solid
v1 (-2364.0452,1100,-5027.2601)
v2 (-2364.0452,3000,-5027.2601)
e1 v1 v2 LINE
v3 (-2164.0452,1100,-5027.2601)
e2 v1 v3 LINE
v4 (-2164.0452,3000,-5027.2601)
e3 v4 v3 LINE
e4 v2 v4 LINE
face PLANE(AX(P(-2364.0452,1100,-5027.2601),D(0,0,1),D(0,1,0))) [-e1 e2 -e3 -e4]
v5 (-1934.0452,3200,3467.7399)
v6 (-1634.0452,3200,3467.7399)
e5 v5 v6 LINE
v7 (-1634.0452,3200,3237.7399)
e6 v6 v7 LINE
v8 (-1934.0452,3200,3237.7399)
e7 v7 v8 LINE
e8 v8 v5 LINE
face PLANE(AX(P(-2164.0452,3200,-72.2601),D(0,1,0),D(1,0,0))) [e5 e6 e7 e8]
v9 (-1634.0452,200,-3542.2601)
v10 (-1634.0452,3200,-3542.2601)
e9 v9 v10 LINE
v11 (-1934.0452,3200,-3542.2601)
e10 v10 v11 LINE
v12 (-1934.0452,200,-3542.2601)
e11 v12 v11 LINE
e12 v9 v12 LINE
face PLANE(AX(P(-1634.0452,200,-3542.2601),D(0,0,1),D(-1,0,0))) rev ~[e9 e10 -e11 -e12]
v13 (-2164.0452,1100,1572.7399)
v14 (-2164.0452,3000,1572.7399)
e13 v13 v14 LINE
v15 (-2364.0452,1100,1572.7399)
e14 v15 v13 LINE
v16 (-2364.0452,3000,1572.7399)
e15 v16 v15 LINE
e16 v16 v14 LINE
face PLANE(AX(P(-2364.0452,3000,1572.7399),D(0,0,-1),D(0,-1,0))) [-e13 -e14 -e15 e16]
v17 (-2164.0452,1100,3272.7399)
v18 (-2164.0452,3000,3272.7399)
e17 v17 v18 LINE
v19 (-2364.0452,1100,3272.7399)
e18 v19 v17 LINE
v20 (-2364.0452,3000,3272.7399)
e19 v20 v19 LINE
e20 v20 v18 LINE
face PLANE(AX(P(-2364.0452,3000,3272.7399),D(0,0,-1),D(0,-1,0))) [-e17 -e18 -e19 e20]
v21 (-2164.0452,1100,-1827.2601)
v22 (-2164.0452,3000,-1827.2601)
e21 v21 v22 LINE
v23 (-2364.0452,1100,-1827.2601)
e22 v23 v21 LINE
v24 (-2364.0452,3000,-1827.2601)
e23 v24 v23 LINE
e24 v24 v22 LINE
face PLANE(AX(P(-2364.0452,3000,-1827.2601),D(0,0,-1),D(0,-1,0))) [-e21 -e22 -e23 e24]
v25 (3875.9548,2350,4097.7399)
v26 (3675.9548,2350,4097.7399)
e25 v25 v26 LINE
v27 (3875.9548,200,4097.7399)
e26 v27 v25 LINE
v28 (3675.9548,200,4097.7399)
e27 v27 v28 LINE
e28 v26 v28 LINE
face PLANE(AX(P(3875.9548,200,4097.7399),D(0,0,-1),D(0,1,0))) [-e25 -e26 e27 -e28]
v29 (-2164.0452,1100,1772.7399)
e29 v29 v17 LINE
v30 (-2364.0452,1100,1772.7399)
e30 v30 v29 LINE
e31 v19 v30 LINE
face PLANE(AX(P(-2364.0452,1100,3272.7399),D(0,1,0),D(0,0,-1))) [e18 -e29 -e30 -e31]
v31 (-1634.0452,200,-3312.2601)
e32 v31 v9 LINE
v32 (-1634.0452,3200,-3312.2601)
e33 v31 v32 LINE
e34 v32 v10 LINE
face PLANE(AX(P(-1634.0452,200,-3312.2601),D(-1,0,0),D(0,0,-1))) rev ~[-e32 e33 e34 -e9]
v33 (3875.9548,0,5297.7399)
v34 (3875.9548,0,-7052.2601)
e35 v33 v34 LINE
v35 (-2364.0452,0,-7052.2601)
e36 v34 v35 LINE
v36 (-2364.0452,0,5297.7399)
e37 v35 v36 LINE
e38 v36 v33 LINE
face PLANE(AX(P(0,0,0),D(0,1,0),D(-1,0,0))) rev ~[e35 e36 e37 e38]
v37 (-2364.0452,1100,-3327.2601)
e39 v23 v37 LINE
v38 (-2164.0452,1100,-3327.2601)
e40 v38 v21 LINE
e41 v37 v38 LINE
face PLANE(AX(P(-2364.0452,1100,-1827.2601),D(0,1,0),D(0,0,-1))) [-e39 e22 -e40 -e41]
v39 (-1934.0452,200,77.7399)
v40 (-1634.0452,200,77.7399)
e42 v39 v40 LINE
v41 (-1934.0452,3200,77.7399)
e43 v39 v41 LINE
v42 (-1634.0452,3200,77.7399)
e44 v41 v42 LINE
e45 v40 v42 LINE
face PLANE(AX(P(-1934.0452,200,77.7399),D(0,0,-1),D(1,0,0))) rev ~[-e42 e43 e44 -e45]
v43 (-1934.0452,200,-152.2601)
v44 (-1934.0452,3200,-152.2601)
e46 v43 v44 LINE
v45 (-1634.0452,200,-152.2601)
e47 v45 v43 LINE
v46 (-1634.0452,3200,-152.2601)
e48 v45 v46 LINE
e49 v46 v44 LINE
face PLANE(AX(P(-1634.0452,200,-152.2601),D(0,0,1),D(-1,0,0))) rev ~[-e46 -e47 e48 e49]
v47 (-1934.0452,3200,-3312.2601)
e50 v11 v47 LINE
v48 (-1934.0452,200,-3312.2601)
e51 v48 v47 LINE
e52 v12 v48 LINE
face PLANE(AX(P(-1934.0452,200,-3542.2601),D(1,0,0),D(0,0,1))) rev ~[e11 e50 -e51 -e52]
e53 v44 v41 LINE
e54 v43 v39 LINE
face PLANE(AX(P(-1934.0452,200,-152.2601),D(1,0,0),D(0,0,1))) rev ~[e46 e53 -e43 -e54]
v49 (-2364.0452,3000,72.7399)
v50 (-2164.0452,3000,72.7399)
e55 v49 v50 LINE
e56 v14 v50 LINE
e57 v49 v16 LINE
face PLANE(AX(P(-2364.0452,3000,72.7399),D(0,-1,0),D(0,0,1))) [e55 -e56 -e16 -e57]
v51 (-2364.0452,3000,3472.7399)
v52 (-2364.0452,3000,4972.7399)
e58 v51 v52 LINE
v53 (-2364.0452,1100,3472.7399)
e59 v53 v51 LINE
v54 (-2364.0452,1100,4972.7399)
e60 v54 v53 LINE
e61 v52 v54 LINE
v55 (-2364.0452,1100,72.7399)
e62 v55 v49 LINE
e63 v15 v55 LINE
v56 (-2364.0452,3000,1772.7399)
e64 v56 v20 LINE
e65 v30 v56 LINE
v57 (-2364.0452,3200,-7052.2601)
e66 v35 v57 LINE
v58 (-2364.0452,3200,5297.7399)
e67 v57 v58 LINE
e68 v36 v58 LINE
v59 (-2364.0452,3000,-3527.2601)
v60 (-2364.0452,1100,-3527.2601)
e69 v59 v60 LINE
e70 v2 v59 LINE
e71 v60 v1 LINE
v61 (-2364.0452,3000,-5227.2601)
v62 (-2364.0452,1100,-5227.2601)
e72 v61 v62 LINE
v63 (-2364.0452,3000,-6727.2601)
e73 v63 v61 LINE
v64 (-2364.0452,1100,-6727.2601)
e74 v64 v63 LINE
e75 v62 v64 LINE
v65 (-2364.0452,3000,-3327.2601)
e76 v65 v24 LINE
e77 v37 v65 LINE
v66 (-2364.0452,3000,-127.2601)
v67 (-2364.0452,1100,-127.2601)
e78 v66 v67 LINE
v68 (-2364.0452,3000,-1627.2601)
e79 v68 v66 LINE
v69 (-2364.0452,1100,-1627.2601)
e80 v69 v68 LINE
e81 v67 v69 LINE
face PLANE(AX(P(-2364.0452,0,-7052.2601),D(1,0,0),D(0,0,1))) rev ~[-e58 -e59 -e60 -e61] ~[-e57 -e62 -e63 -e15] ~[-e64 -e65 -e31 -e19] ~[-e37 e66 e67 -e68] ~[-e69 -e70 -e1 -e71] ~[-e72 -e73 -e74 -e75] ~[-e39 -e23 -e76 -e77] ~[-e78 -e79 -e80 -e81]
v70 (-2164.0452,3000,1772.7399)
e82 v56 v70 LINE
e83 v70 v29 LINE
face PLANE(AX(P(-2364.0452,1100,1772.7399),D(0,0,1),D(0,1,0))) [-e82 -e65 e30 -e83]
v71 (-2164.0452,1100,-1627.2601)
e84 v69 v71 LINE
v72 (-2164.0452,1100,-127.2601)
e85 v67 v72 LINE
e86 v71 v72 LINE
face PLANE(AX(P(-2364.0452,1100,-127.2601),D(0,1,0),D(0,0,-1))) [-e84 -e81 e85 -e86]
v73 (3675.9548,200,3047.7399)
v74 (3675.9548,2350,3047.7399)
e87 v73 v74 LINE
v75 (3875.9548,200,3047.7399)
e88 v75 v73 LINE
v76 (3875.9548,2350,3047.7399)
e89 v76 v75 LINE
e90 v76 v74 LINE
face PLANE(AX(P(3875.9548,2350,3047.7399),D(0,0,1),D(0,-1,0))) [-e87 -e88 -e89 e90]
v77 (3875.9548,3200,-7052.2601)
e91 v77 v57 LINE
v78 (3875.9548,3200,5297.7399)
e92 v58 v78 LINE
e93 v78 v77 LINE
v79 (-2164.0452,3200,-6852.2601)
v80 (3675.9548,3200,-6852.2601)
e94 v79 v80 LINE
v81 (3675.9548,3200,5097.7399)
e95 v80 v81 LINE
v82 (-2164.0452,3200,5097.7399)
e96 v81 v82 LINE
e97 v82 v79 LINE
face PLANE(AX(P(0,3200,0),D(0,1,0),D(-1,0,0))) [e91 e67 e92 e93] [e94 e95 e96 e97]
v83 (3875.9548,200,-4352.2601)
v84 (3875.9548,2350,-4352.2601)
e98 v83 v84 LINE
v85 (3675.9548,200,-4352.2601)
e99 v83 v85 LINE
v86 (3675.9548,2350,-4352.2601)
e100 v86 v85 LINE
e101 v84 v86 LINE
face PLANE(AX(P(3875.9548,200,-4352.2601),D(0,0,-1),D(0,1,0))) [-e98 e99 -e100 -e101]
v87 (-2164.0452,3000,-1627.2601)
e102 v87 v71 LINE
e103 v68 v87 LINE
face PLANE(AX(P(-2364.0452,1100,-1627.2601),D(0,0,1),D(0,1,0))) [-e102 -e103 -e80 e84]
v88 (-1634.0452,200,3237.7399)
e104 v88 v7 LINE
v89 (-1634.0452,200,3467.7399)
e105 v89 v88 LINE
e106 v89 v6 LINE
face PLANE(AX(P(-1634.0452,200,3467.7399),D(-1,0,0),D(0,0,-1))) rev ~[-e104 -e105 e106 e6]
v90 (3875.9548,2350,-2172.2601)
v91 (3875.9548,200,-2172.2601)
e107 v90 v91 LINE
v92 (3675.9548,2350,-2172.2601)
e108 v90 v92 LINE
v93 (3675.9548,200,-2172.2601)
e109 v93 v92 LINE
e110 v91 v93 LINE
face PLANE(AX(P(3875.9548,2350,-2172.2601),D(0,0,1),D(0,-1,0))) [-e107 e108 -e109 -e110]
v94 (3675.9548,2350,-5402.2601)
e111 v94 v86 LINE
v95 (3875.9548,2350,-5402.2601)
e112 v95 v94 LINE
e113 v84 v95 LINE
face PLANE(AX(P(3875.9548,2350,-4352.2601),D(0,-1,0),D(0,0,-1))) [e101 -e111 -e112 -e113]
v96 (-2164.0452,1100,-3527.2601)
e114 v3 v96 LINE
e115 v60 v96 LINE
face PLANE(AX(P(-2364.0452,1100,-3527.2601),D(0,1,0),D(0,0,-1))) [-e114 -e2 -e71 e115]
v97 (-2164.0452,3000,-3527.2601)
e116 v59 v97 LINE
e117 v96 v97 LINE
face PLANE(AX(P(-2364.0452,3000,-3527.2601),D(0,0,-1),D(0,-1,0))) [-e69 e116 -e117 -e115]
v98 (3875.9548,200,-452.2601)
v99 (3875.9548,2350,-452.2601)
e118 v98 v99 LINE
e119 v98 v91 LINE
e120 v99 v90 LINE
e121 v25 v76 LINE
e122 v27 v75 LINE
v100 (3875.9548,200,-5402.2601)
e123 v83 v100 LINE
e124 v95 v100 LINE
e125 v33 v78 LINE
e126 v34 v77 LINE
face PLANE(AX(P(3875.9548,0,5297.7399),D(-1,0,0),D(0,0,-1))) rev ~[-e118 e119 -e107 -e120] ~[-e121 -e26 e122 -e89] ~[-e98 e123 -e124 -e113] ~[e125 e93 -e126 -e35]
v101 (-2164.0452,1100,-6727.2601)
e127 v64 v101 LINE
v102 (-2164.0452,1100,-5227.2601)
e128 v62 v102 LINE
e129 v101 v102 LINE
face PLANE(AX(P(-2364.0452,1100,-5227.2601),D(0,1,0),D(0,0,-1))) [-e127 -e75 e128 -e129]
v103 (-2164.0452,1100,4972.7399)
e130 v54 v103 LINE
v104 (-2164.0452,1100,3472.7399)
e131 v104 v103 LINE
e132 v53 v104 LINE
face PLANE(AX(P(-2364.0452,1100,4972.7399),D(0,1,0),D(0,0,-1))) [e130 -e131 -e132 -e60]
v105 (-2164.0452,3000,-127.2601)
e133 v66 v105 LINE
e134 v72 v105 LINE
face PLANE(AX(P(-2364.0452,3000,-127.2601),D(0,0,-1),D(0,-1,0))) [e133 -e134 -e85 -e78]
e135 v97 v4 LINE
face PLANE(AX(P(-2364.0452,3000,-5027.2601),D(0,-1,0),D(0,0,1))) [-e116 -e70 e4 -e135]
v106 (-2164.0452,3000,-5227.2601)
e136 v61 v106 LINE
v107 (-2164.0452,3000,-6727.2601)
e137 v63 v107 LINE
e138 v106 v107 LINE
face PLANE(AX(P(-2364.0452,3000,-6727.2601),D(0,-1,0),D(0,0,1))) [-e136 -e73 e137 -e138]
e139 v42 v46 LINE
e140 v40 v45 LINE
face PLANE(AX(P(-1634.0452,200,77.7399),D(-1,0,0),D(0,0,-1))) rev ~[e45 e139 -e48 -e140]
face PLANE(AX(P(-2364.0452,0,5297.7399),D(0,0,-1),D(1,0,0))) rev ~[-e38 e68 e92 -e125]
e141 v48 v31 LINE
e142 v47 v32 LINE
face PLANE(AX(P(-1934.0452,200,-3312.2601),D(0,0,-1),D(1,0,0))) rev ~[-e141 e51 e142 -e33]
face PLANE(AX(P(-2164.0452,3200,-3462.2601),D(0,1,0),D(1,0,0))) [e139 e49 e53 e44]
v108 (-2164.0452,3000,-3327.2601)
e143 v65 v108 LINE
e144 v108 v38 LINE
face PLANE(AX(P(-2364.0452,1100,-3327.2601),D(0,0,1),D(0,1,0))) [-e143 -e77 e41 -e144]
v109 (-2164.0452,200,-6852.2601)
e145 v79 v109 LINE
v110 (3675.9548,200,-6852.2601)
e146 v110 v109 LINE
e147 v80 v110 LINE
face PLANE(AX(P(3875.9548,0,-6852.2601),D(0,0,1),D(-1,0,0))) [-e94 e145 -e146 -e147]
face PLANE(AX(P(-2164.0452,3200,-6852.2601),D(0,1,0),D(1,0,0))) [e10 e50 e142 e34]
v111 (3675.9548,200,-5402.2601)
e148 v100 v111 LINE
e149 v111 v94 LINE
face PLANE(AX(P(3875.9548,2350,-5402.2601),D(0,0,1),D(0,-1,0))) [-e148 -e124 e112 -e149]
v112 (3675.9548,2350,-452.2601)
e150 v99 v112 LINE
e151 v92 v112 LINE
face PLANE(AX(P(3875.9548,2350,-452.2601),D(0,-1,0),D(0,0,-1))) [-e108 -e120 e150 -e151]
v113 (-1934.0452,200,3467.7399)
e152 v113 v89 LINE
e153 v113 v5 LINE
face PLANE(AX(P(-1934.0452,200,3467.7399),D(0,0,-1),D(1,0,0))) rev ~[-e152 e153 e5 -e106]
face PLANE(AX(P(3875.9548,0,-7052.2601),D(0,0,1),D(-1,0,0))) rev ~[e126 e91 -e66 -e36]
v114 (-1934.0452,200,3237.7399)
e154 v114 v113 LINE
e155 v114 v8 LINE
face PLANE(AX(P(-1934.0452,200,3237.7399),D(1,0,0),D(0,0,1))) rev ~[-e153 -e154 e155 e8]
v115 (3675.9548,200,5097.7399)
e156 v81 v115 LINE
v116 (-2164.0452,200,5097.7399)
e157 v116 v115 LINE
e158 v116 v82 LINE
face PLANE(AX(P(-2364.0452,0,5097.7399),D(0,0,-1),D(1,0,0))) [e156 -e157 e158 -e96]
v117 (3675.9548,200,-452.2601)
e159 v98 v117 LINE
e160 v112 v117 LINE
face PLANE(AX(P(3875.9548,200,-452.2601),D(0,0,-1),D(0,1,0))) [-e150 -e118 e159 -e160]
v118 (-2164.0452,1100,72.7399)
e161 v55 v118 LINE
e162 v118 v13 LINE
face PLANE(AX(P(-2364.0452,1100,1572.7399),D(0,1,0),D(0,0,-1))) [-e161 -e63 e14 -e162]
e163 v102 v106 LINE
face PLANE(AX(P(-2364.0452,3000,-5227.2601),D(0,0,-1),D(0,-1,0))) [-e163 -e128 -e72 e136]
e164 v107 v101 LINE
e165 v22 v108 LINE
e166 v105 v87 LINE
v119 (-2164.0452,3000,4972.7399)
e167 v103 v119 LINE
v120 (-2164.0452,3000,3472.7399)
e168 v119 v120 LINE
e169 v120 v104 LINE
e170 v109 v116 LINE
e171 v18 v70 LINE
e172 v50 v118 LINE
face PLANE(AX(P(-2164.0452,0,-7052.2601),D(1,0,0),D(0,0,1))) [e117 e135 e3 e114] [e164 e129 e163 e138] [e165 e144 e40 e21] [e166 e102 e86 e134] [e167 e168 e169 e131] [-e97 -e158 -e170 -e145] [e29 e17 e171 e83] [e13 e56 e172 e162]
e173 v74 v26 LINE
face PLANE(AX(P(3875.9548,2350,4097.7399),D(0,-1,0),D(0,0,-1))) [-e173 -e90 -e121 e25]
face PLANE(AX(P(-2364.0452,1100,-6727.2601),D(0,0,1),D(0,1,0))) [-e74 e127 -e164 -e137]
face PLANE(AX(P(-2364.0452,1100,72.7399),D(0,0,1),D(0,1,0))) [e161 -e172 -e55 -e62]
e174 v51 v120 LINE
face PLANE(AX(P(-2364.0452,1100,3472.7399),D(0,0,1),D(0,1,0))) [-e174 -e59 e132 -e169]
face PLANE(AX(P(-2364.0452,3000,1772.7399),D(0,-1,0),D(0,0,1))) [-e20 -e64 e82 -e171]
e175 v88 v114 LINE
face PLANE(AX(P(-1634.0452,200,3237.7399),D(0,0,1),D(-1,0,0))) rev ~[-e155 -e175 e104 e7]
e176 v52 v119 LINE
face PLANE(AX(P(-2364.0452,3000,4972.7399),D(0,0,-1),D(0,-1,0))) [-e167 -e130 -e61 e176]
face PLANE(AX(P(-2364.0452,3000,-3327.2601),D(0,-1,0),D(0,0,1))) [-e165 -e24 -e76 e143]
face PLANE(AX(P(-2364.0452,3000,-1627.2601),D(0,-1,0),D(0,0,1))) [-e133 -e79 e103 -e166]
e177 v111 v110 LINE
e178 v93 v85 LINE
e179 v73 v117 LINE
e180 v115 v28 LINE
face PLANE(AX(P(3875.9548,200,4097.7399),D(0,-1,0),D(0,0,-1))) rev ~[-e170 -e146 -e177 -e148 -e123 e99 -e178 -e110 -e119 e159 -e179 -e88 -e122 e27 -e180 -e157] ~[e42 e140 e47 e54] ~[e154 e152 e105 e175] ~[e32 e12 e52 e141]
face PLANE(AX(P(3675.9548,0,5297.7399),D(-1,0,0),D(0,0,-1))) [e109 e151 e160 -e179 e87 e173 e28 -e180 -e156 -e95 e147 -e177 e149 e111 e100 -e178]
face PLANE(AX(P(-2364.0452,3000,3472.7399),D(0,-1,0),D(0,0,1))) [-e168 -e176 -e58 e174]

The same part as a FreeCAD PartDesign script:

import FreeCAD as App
import Part
import Sketcher
from FreeCAD import Vector


def faces_at(feature, points):
    """Names of the faces that lie closest to the given points."""
    faces = feature.Shape.Faces
    near = lambda p: min(range(len(faces)), key=lambda i: faces[i].distToShape(Part.Vertex(*p))[0])
    return sorted({f"Face{near(p) + 1}" for p in points})


def add_polygon(sketch, points):
    """Adds a closed chain of lines whose ends are joined by coincident constraints."""
    first, n = sketch.GeometryCount, len(points)
    for a, b in zip(points, points[1:] + points[:1]):
        sketch.addGeometry(Part.LineSegment(App.Vector(*a, 0), App.Vector(*b, 0)), False)
    for i in range(n):
        sketch.addConstraint(Sketcher.Constraint("Coincident", first + i, 2, first + (i + 1) % n, 1))

doc = App.newDocument("Part")
body = doc.addObject("PartDesign::Body", "Body")

sketch1 = body.newObject("Sketcher::SketchObject", "Sketch")
sketch1.AttachmentSupport = (doc.getObject("XZ_Plane"), [""])
sketch1.MapMode = "FlatFace"
add_polygon(sketch1, [(-2364, -7052), (-2364, 5298), (3876, 5298), (3876, -7052)])
sketch1.addConstraint(Sketcher.Constraint("Vertical", 0))
sketch1.addConstraint(Sketcher.Constraint("Horizontal", 1))
sketch1.addConstraint(Sketcher.Constraint("Vertical", 2))
sketch1.addConstraint(Sketcher.Constraint("Horizontal", 3))
sketch1.addConstraint(Sketcher.Constraint("DistanceX", 1, 1, 1, 2, 6240.0))
sketch1.addConstraint(Sketcher.Constraint("DistanceY", 0, 1, 0, 2, 12350.0))
sketch1.addConstraint(Sketcher.Constraint("DistanceY", -1, 1, 0, 2, 5297.74))
sketch1.addConstraint(Sketcher.Constraint("DistanceX", 0, 2, -1, 1, 2364.0452))
pad1 = body.newObject("PartDesign::Pad", "Pad")
pad1.Profile = sketch1
pad1.Length = 3200
pad1.Reversed = True
doc.recompute()

thickness = body.newObject("PartDesign::Thickness", "Thickness")
thickness.Base = (pad1, faces_at(pad1, [(-284.045, 3200, 1181.073)]))
thickness.Value = 200
thickness.Reversed = True
thickness.Join = "Intersection"

sketch2 = body.newObject("Sketcher::SketchObject", "Sketch001")
sketch2.AttachmentSupport = (doc.getObject("YZ_Plane"), [""])
sketch2.MapMode = "FlatFace"
sketch2.AttachmentOffset = App.Placement(Vector(0, 0, 3875.9548), App.Rotation())
add_polygon(sketch2, [(2350, 4098), (200, 4098), (200, 3048), (2350, 3048)])
add_polygon(sketch2, [(2350, -4352), (200, -4352), (200, -5402), (2350, -5402)])
add_polygon(sketch2, [(2350, -452), (200, -452), (200, -2172), (2350, -2172)])
sketch2.addConstraint(Sketcher.Constraint("Horizontal", 0))
sketch2.addConstraint(Sketcher.Constraint("Vertical", 1))
sketch2.addConstraint(Sketcher.Constraint("Horizontal", 2))
sketch2.addConstraint(Sketcher.Constraint("Vertical", 3))
sketch2.addConstraint(Sketcher.Constraint("Horizontal", 4))
sketch2.addConstraint(Sketcher.Constraint("Vertical", 5))
sketch2.addConstraint(Sketcher.Constraint("Horizontal", 6))
sketch2.addConstraint(Sketcher.Constraint("Vertical", 7))
sketch2.addConstraint(Sketcher.Constraint("Horizontal", 8))
sketch2.addConstraint(Sketcher.Constraint("Vertical", 9))
sketch2.addConstraint(Sketcher.Constraint("Horizontal", 10))
sketch2.addConstraint(Sketcher.Constraint("Vertical", 11))
sketch2.addConstraint(Sketcher.Constraint("Vertical", 1, 2, 4, 2))
sketch2.addConstraint(Sketcher.Constraint("Vertical", 3, 2, 6, 2))
sketch2.addConstraint(Sketcher.Constraint("Vertical", 5, 2, 8, 2))
sketch2.addConstraint(Sketcher.Constraint("Vertical", 7, 2, 10, 2))
sketch2.addConstraint(Sketcher.Constraint("Equal", 3, 5))
sketch2.addConstraint(Sketcher.Constraint("DistanceX", 0, 2, 0, 1, 2150.0))
sketch2.addConstraint(Sketcher.Constraint("DistanceY", 1, 2, 1, 1, 1050.0))
sketch2.addConstraint(Sketcher.Constraint("DistanceY", 9, 2, 9, 1, 1720.0))
sketch2.addConstraint(Sketcher.Constraint("DistanceX", -1, 1, 0, 2, 200.0))
sketch2.addConstraint(Sketcher.Constraint("DistanceY", 4, 2, 1, 2, 7400.0))
sketch2.addConstraint(Sketcher.Constraint("DistanceY", 8, 2, 1, 2, 3500.0))
sketch2.addConstraint(Sketcher.Constraint("DistanceY", -1, 1, 0, 2, 4097.74))
pocket1 = body.newObject("PartDesign::Pocket", "Pocket")
pocket1.Profile = sketch2
pocket1.Length = 3000

sketch3 = body.newObject("Sketcher::SketchObject", "Sketch002")
sketch3.AttachmentSupport = (doc.getObject("YZ_Plane"), [""])
sketch3.MapMode = "FlatFace"
sketch3.AttachmentOffset = App.Placement(Vector(0, 0, -2364.0452), App.Rotation())
add_polygon(sketch3, [(3000, -5227), (3000, -6727), (1100, -6727), (1100, -5227)])
sketch3.addConstraint(Sketcher.Constraint("Vertical", 0))
sketch3.addConstraint(Sketcher.Constraint("Horizontal", 1))
sketch3.addConstraint(Sketcher.Constraint("Vertical", 2))
sketch3.addConstraint(Sketcher.Constraint("Horizontal", 3))
sketch3.addConstraint(Sketcher.Constraint("DistanceX", 1, 2, 1, 1, 1900.0))
sketch3.addConstraint(Sketcher.Constraint("DistanceY", 0, 2, 0, 1, 1500.0))
sketch3.addConstraint(Sketcher.Constraint("DistanceX", -1, 1, 0, 2, 3000.0))
sketch3.addConstraint(Sketcher.Constraint("DistanceY", 0, 2, -1, 1, 6727.26))
pocket2 = body.newObject("PartDesign::Pocket", "Pocket001")
pocket2.Profile = sketch3
pocket2.Length = 3000
pocket2.Reversed = True
doc.recompute()

linearpattern = body.newObject("PartDesign::LinearPattern", "LinearPattern")
linearpattern.Originals = [pocket2]
linearpattern.Direction = (doc.getObject("Z_Axis"), [""])
linearpattern.Mode = "offset"
linearpattern.Offset = 1700
linearpattern.Occurrences = 7
body.Tip = linearpattern

sketch4 = body.newObject("Sketcher::SketchObject", "Sketch003")
sketch4.AttachmentSupport = (doc.getObject("XZ_Plane"), [""])
sketch4.MapMode = "FlatFace"
sketch4.AttachmentOffset = App.Placement(Vector(0, 0, -200), App.Rotation())
add_polygon(sketch4, [(-1634, -3312), (-1634, -3542), (-1934, -3542), (-1934, -3312)])
sketch4.addConstraint(Sketcher.Constraint("Vertical", 0))
sketch4.addConstraint(Sketcher.Constraint("Horizontal", 1))
sketch4.addConstraint(Sketcher.Constraint("Vertical", 2))
sketch4.addConstraint(Sketcher.Constraint("Horizontal", 3))
sketch4.addConstraint(Sketcher.Constraint("DistanceX", 1, 2, 1, 1, 300.0))
sketch4.addConstraint(Sketcher.Constraint("DistanceY", 0, 2, 0, 1, 230.0))
sketch4.addConstraint(Sketcher.Constraint("DistanceY", 0, 2, -1, 1, 3542.26))
sketch4.addConstraint(Sketcher.Constraint("DistanceX", 0, 2, -1, 1, 1634.0452))
pad2 = body.newObject("PartDesign::Pad", "Pad001")
pad2.Profile = sketch4
pad2.Length = 3000
pad2.Reversed = True
doc.recompute()

linearpattern2 = body.newObject("PartDesign::LinearPattern", "LinearPattern001")
linearpattern2.Originals = [pad2]
linearpattern2.Direction = (doc.getObject("Z_Axis"), [""])
linearpattern2.Mode = "offset"
linearpattern2.Offset = 3390
linearpattern2.Occurrences = 3
body.Tip = linearpattern2

doc.recompute()
